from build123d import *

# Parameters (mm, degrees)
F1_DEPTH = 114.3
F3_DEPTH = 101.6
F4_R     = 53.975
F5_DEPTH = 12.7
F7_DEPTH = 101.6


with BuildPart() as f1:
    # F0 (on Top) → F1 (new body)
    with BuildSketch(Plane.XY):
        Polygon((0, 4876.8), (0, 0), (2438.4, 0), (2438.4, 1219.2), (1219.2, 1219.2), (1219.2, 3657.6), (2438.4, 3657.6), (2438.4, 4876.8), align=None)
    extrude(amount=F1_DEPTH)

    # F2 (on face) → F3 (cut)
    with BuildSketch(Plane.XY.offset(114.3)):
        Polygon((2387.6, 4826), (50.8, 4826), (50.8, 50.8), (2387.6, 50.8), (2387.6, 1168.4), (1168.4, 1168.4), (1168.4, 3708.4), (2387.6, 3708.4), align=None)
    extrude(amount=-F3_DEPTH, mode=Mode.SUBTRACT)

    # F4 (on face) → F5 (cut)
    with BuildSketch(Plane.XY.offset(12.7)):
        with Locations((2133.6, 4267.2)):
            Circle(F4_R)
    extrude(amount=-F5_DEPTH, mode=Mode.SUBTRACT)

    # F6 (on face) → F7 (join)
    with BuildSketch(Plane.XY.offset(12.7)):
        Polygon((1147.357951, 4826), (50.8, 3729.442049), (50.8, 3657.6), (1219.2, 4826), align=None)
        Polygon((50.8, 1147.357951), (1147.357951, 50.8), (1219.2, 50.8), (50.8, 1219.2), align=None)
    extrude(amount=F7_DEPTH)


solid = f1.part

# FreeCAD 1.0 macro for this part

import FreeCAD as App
import Part
import Sketcher
Q = App.Units.Quantity

doc = App.newDocument("Part")
body = doc.addObject("PartDesign::Body", "Body")

# Sketch on XY plane
sketch1 = doc.addObject("Sketcher::SketchObject", "Sketch")
body.addObject(sketch1)
sketch1.AttachmentSupport = (doc.XY_Plane, [""])
sketch1.MapMode = "FlatFace"
sketch1.addGeometry(Part.LineSegment(App.Vector(0, 4877, 0), App.Vector(0, 0, 0)), False)
sketch1.addGeometry(Part.LineSegment(App.Vector(0, 0, 0), App.Vector(2438, 0, 0)), False)
sketch1.addGeometry(Part.LineSegment(App.Vector(2438, 0, 0), App.Vector(2438, 1219, 0)), False)
sketch1.addGeometry(Part.LineSegment(App.Vector(2438, 1219, 0), App.Vector(1219, 1219, 0)), False)
sketch1.addGeometry(Part.LineSegment(App.Vector(1219, 1219, 0), App.Vector(1219, 3658, 0)), False)
sketch1.addGeometry(Part.LineSegment(App.Vector(1219, 3658, 0), App.Vector(2438, 3658, 0)), False)
sketch1.addGeometry(Part.LineSegment(App.Vector(2438, 3658, 0), App.Vector(2438, 4877, 0)), False)
sketch1.addGeometry(Part.LineSegment(App.Vector(2438, 4877, 0), App.Vector(0, 4877, 0)), False)
sketch1.addConstraint(Sketcher.Constraint("Coincident", 0, 2, 1, 1))
sketch1.addConstraint(Sketcher.Constraint("Coincident", 1, 2, 2, 1))
sketch1.addConstraint(Sketcher.Constraint("Coincident", 2, 2, 3, 1))
sketch1.addConstraint(Sketcher.Constraint("Coincident", 3, 2, 4, 1))
sketch1.addConstraint(Sketcher.Constraint("Coincident", 4, 2, 5, 1))
sketch1.addConstraint(Sketcher.Constraint("Coincident", 5, 2, 6, 1))
sketch1.addConstraint(Sketcher.Constraint("Coincident", 6, 2, 7, 1))
sketch1.addConstraint(Sketcher.Constraint("Coincident", 7, 2, 0, 1))
sketch1.addConstraint(Sketcher.Constraint("Vertical", 0))
sketch1.addConstraint(Sketcher.Constraint("Horizontal", 1))
sketch1.addConstraint(Sketcher.Constraint("Vertical", 2))
sketch1.addConstraint(Sketcher.Constraint("Horizontal", 3))
sketch1.addConstraint(Sketcher.Constraint("Vertical", 4))
sketch1.addConstraint(Sketcher.Constraint("Horizontal", 5))
sketch1.addConstraint(Sketcher.Constraint("Vertical", 6))
sketch1.addConstraint(Sketcher.Constraint("Horizontal", 7))
sketch1.addConstraint(Sketcher.Constraint("Coincident", 0, 2, -1, 1))
sketch1.addConstraint(Sketcher.Constraint("Vertical", 2, 2, 5, 2))
sketch1.addConstraint(Sketcher.Constraint("Equal", 5, 2))
sketch1.addConstraint(Sketcher.Constraint("Equal", 7, 4))
sketch1.addConstraint(Sketcher.Constraint("Equal", 2, 6))
sketch1.addConstraint(Sketcher.Constraint("DistanceX", 1, 1, 1, 2, Q("96 in")))
sketch1.addConstraint(Sketcher.Constraint("DistanceX", 3, 2, 3, 1, Q("48 in")))
pad1 = doc.addObject("PartDesign::Pad", "Pad")
body.addObject(pad1)
pad1.Profile = sketch1
pad1.Length = Q("4.5 in")

# Sketch on XY plane
sketch2 = doc.addObject("Sketcher::SketchObject", "Sketch001")
body.addObject(sketch2)
sketch2.AttachmentSupport = (doc.XY_Plane, [""])
sketch2.MapMode = "FlatFace"
sketch2.AttachmentOffset = App.Placement(App.Vector(0, 0, 4.5 * 25.4), App.Rotation())
sketch2.addGeometry(Part.LineSegment(App.Vector(2388, 4826, 0), App.Vector(51, 4826, 0)), False)
sketch2.addGeometry(Part.LineSegment(App.Vector(51, 4826, 0), App.Vector(51, 51, 0)), False)
sketch2.addGeometry(Part.LineSegment(App.Vector(51, 51, 0), App.Vector(2388, 51, 0)), False)
sketch2.addGeometry(Part.LineSegment(App.Vector(2388, 51, 0), App.Vector(2388, 1168, 0)), False)
sketch2.addGeometry(Part.LineSegment(App.Vector(2388, 1168, 0), App.Vector(1168, 1168, 0)), False)
sketch2.addGeometry(Part.LineSegment(App.Vector(1168, 1168, 0), App.Vector(1168, 3708, 0)), False)
sketch2.addGeometry(Part.LineSegment(App.Vector(1168, 3708, 0), App.Vector(2388, 3708, 0)), False)
sketch2.addGeometry(Part.LineSegment(App.Vector(2388, 3708, 0), App.Vector(2388, 4826, 0)), False)
sketch2.addConstraint(Sketcher.Constraint("Coincident", 0, 2, 1, 1))
sketch2.addConstraint(Sketcher.Constraint("Coincident", 1, 2, 2, 1))
sketch2.addConstraint(Sketcher.Constraint("Coincident", 2, 2, 3, 1))
sketch2.addConstraint(Sketcher.Constraint("Coincident", 3, 2, 4, 1))
sketch2.addConstraint(Sketcher.Constraint("Coincident", 4, 2, 5, 1))
sketch2.addConstraint(Sketcher.Constraint("Coincident", 5, 2, 6, 1))
sketch2.addConstraint(Sketcher.Constraint("Coincident", 6, 2, 7, 1))
sketch2.addConstraint(Sketcher.Constraint("Coincident", 7, 2, 0, 1))
sketch2.addConstraint(Sketcher.Constraint("Horizontal", 0))
sketch2.addConstraint(Sketcher.Constraint("Vertical", 1))
sketch2.addConstraint(Sketcher.Constraint("Horizontal", 2))
sketch2.addConstraint(Sketcher.Constraint("Vertical", 3))
sketch2.addConstraint(Sketcher.Constraint("Horizontal", 4))
sketch2.addConstraint(Sketcher.Constraint("Vertical", 5))
sketch2.addConstraint(Sketcher.Constraint("Horizontal", 6))
sketch2.addConstraint(Sketcher.Constraint("Vertical", 7))
sketch2.addConstraint(Sketcher.Constraint("Vertical", 3, 2, 6, 2))
sketch2.addConstraint(Sketcher.Constraint("Equal", 3, 7))
sketch2.addConstraint(Sketcher.Constraint("DistanceX", 0, 2, 0, 1, Q("92 in")))
sketch2.addConstraint(Sketcher.Constraint("DistanceX", 4, 2, 4, 1, Q("48 in")))
sketch2.addConstraint(Sketcher.Constraint("DistanceY", 1, 2, 1, 1, Q("188 in")))
sketch2.addConstraint(Sketcher.Constraint("DistanceY", 3, 1, 3, 2, Q("44 in")))
sketch2.addConstraint(Sketcher.Constraint("DistanceX", -1, 1, 0, 2, Q("2 in")))
sketch2.addConstraint(Sketcher.Constraint("DistanceY", -1, 1, 0, 2, Q("190 in")))
pocket1 = doc.addObject("PartDesign::Pocket", "Pocket")
body.addObject(pocket1)
pocket1.Profile = sketch2
pocket1.Length = Q("4 in")

# Sketch on XY plane
sketch3 = doc.addObject("Sketcher::SketchObject", "Sketch002")
body.addObject(sketch3)
sketch3.AttachmentSupport = (doc.XY_Plane, [""])
sketch3.MapMode = "FlatFace"
sketch3.AttachmentOffset = App.Placement(App.Vector(0, 0, 0.5 * 25.4), App.Rotation())
sketch3.addGeometry(Part.Circle(App.Vector(2134, 4267, 0), App.Vector(0, 0, 1), 54), False)
sketch3.addConstraint(Sketcher.Constraint("Diameter", 0, Q("4.25 in")))
sketch3.addConstraint(Sketcher.Constraint("DistanceX", -1, 1, 0, 3, Q("84 in")))
sketch3.addConstraint(Sketcher.Constraint("DistanceY", -1, 1, 0, 3, Q("168 in")))
pocket2 = doc.addObject("PartDesign::Pocket", "Pocket001")
body.addObject(pocket2)
pocket2.Profile = sketch3
pocket2.Length = Q("0.5 in")

# Sketch on XY plane
sketch4 = doc.addObject("Sketcher::SketchObject", "Sketch003")
body.addObject(sketch4)
sketch4.AttachmentSupport = (doc.XY_Plane, [""])
sketch4.MapMode = "FlatFace"
sketch4.AttachmentOffset = App.Placement(App.Vector(0, 0, 0.5 * 25.4), App.Rotation())
sketch4.addGeometry(Part.LineSegment(App.Vector(1147, 4826, 0), App.Vector(51, 3729, 0)), False)
sketch4.addGeometry(Part.LineSegment(App.Vector(51, 3729, 0), App.Vector(51, 3658, 0)), False)
sketch4.addGeometry(Part.LineSegment(App.Vector(51, 3658, 0), App.Vector(1219, 4826, 0)), False)
sketch4.addGeometry(Part.LineSegment(App.Vector(1219, 4826, 0), App.Vector(1147, 4826, 0)), False)
sketch4.addGeometry(Part.LineSegment(App.Vector(51, 1147, 0), App.Vector(1147, 51, 0)), False)
sketch4.addGeometry(Part.LineSegment(App.Vector(1147, 51, 0), App.Vector(1219, 51, 0)), False)
sketch4.addGeometry(Part.LineSegment(App.Vector(1219, 51, 0), App.Vector(51, 1219, 0)), False)
sketch4.addGeometry(Part.LineSegment(App.Vector(51, 1219, 0), App.Vector(51, 1147, 0)), False)
sketch4.addConstraint(Sketcher.Constraint("Coincident", 0, 2, 1, 1))
sketch4.addConstraint(Sketcher.Constraint("Coincident", 1, 2, 2, 1))
sketch4.addConstraint(Sketcher.Constraint("Coincident", 2, 2, 3, 1))
sketch4.addConstraint(Sketcher.Constraint("Coincident", 3, 2, 0, 1))
sketch4.addConstraint(Sketcher.Constraint("Coincident", 4, 2, 5, 1))
sketch4.addConstraint(Sketcher.Constraint("Coincident", 5, 2, 6, 1))
sketch4.addConstraint(Sketcher.Constraint("Coincident", 6, 2, 7, 1))
sketch4.addConstraint(Sketcher.Constraint("Coincident", 7, 2, 4, 1))
sketch4.addConstraint(Sketcher.Constraint("Vertical", 1))
sketch4.addConstraint(Sketcher.Constraint("Horizontal", 3))
sketch4.addConstraint(Sketcher.Constraint("Horizontal", 5))
sketch4.addConstraint(Sketcher.Constraint("Vertical", 7))
sketch4.addConstraint(Sketcher.Constraint("Parallel", 0, 2))
sketch4.addConstraint(Sketcher.Constraint("Perpendicular", 2, 4))
sketch4.addConstraint(Sketcher.Constraint("Parallel", 4, 6))
sketch4.addConstraint(Sketcher.Constraint("Vertical", 3, 2, 4, 2))
sketch4.addConstraint(Sketcher.Constraint("Vertical", 2, 2, 5, 2))
sketch4.addConstraint(Sketcher.Constraint("Vertical", 1, 2, 6, 2))
sketch4.addConstraint(Sketcher.Constraint("Equal", 5, 1))
sketch4.addConstraint(Sketcher.Constraint("DistanceX", -1, 1, 0, 2, Q("2 in")))
sketch4.addConstraint(Sketcher.Constraint("DistanceY", -1, 1, 1, 2, Q("144 in")))
sketch4.addConstraint(Sketcher.Constraint("DistanceX", -1, 1, 2, 2, Q("48 in")))
sketch4.addConstraint(Sketcher.Constraint("DistanceY", -1, 1, 4, 2, Q("2 in")))
sketch4.addConstraint(Sketcher.Constraint("DistanceX", 3, 2, 3, 1, Q("71.842049 mm")))
pad2 = doc.addObject("PartDesign::Pad", "Pad001")
body.addObject(pad2)
pad2.Profile = sketch4
pad2.Length = Q("4 in")

doc.recompute()
